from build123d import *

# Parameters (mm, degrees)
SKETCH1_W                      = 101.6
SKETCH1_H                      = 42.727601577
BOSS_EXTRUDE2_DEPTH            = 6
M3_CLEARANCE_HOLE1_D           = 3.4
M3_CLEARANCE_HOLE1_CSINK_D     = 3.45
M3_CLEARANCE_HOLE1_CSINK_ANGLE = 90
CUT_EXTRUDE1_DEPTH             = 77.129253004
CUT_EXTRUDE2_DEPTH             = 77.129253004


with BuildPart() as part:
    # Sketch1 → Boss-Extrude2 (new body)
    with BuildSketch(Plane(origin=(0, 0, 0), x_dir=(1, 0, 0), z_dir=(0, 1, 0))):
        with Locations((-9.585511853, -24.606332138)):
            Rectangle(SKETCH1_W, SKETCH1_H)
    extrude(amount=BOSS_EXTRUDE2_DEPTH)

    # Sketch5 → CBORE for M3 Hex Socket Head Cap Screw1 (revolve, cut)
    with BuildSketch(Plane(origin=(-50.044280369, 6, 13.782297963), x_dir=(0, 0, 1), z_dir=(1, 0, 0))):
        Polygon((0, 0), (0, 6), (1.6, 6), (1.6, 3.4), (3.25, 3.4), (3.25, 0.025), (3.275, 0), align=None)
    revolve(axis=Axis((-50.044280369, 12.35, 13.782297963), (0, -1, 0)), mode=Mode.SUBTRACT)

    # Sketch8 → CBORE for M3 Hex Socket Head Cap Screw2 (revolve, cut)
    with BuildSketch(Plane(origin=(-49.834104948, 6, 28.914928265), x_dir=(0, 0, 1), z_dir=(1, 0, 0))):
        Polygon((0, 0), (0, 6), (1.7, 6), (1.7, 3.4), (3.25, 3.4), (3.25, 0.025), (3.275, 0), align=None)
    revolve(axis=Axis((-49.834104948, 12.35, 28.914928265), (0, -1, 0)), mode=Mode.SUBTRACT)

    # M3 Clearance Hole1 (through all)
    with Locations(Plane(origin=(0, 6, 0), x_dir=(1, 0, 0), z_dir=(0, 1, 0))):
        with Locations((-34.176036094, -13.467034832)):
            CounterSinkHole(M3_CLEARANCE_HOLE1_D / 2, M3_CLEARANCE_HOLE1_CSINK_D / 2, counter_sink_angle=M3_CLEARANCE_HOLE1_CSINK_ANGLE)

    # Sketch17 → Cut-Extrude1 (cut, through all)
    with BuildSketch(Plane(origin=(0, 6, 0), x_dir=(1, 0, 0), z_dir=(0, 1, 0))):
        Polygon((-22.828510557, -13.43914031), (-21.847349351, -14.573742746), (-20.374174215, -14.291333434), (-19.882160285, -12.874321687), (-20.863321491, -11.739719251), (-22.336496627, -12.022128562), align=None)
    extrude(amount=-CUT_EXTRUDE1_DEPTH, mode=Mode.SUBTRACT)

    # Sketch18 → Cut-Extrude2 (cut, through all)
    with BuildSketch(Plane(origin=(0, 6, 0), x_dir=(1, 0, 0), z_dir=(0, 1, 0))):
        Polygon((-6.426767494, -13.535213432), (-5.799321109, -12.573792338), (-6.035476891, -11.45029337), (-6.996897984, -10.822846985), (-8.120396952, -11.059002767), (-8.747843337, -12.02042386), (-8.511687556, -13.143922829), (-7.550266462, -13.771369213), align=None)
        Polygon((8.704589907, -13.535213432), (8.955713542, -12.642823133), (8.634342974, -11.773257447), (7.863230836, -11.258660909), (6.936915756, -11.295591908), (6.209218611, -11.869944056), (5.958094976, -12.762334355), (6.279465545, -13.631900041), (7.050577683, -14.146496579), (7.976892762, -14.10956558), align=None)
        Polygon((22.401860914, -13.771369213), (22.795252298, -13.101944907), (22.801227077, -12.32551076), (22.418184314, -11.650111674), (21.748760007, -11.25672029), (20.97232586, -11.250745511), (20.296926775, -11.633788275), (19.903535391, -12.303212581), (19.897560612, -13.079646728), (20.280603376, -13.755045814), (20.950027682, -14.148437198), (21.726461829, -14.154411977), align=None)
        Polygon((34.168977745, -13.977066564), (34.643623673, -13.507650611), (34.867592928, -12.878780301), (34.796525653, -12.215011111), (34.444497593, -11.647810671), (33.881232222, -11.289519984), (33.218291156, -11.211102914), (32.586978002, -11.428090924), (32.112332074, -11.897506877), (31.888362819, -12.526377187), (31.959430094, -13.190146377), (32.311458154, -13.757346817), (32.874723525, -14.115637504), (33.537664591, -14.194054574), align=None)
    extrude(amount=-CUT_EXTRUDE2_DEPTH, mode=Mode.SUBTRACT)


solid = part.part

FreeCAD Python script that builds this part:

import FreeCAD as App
import Part
import Sketcher
Q = App.Units.Quantity


def add_polygon(sketch, points):
    """Adds a closed chain of lines whose ends are joined by coincident constraints."""
    first, n = sketch.GeometryCount, len(points)
    for a, b in zip(points, points[1:] + points[:1]):
        sketch.addGeometry(Part.LineSegment(App.Vector(*a, 0), App.Vector(*b, 0)), False)
    for i in range(n):
        sketch.addConstraint(Sketcher.Constraint("Coincident", first + i, 2, first + (i + 1) % n, 1))

doc = App.newDocument("Part")
body = doc.addObject("PartDesign::Body", "Body")

# Sketch on XZ plane
sketch1 = body.newObject("Sketcher::SketchObject", "Sketch")
sketch1.AttachmentSupport = (doc.getObject("XZ_Plane"), [""])
sketch1.MapMode = "FlatFace"
add_polygon(sketch1, [(-60.385512, 3.242531), (-60.385512, 45.970133), (41.214488, 45.970133), (41.214488, 3.242531)])  # lines 0-3
sketch1.addConstraint(Sketcher.Constraint("Vertical", 0))
sketch1.addConstraint(Sketcher.Constraint("Horizontal", 1))
sketch1.addConstraint(Sketcher.Constraint("Vertical", 2))
sketch1.addConstraint(Sketcher.Constraint("Horizontal", 3))
sketch1.addConstraint(Sketcher.Constraint("DistanceX", 1, 1, 1, 2, 101.6))
sketch1.addConstraint(Sketcher.Constraint("DistanceY", 0, 1, 0, 2, 42.727602))
sketch1.addConstraint(Sketcher.Constraint("DistanceX", 0, 2, -1, 1, 60.385512))
sketch1.addConstraint(Sketcher.Constraint("DistanceY", -1, 1, 2, 2, 3.242531))
pad1 = body.newObject("PartDesign::Pad", "Pad")
pad1.Profile = sketch1
pad1.Length = 6
pad1.Reversed = True

# Sketch on YZ plane
sketch2 = body.newObject("Sketcher::SketchObject", "Sketch001")
sketch2.AttachmentSupport = (doc.getObject("YZ_Plane"), [""])
sketch2.MapMode = "FlatFace"
sketch2.AttachmentOffset = App.Placement(App.Vector(0, 0, -50.04428), App.Rotation())
add_polygon(sketch2, [(0, 13.782298), (6, 13.782298), (6, 17.057298), (5.975, 17.032298), (2.6, 17.032298), (2.6, 15.382298), (0, 15.382298)])  # lines 0-6
sketch2.addGeometry(Part.LineSegment(App.Vector(6, 13.782298, 0), App.Vector(0, 13.782298, 0)), True)  # axis
sketch2.addConstraint(Sketcher.Constraint("Horizontal", 0))
sketch2.addConstraint(Sketcher.Constraint("Vertical", 1))
sketch2.addConstraint(Sketcher.Constraint("Horizontal", 3))
sketch2.addConstraint(Sketcher.Constraint("Vertical", 4))
sketch2.addConstraint(Sketcher.Constraint("Horizontal", 5))
sketch2.addConstraint(Sketcher.Constraint("Vertical", 6))
sketch2.addConstraint(Sketcher.Constraint("Horizontal", 7))
sketch2.addConstraint(Sketcher.Constraint("Coincident", 7, 1, 0, 2))
sketch2.addConstraint(Sketcher.Constraint("PointOnObject", 5, 2, -2))
sketch2.addConstraint(Sketcher.Constraint("PointOnObject", 7, 2, -2))
sketch2.addConstraint(Sketcher.Constraint("DistanceX", 0, 1, 0, 2, 6.0))
sketch2.addConstraint(Sketcher.Constraint("Angle", 2, Q("-135 deg")))
sketch2.addConstraint(Sketcher.Constraint("DistanceX", 5, 2, 5, 1, 2.6))
sketch2.addConstraint(Sketcher.Constraint("DistanceY", 6, 2, 6, 1, 1.6))
sketch2.addConstraint(Sketcher.Constraint("DistanceY", 4, 2, 4, 1, 1.65))
sketch2.addConstraint(Sketcher.Constraint("DistanceX", 3, 2, 3, 1, 3.375))
sketch2.addConstraint(Sketcher.Constraint("DistanceY", -1, 1, 0, 2, 13.782298))
groove = body.newObject("PartDesign::Groove", "Groove")
groove.Profile = sketch2
groove.ReferenceAxis = (sketch2, ["Axis0"])
groove.Angle = 360

# Sketch on YZ plane
sketch3 = body.newObject("Sketcher::SketchObject", "Sketch002")
sketch3.AttachmentSupport = (doc.getObject("YZ_Plane"), [""])
sketch3.MapMode = "FlatFace"
sketch3.AttachmentOffset = App.Placement(App.Vector(0, 0, -49.834105), App.Rotation())
add_polygon(sketch3, [(0, 28.914928), (6, 28.914928), (6, 32.189928), (5.975, 32.164928), (2.6, 32.164928), (2.6, 30.614928), (0, 30.614928)])  # lines 0-6
sketch3.addGeometry(Part.LineSegment(App.Vector(6, 28.914928, 0), App.Vector(0, 28.914928, 0)), True)  # axis
sketch3.addConstraint(Sketcher.Constraint("Horizontal", 0))
sketch3.addConstraint(Sketcher.Constraint("Vertical", 1))
sketch3.addConstraint(Sketcher.Constraint("Horizontal", 3))
sketch3.addConstraint(Sketcher.Constraint("Vertical", 4))
sketch3.addConstraint(Sketcher.Constraint("Horizontal", 5))
sketch3.addConstraint(Sketcher.Constraint("Vertical", 6))
sketch3.addConstraint(Sketcher.Constraint("Horizontal", 7))
sketch3.addConstraint(Sketcher.Constraint("Coincident", 7, 1, 0, 2))
sketch3.addConstraint(Sketcher.Constraint("PointOnObject", 5, 2, -2))
sketch3.addConstraint(Sketcher.Constraint("PointOnObject", 7, 2, -2))
sketch3.addConstraint(Sketcher.Constraint("DistanceX", 0, 1, 0, 2, 6.0))
sketch3.addConstraint(Sketcher.Constraint("Angle", 2, Q("-135 deg")))
sketch3.addConstraint(Sketcher.Constraint("DistanceX", 5, 2, 5, 1, 2.6))
sketch3.addConstraint(Sketcher.Constraint("DistanceY", 6, 2, 6, 1, 1.7))
sketch3.addConstraint(Sketcher.Constraint("DistanceY", 4, 2, 4, 1, 1.55))
sketch3.addConstraint(Sketcher.Constraint("DistanceX", 3, 2, 3, 1, 3.375))
sketch3.addConstraint(Sketcher.Constraint("DistanceY", -1, 1, 0, 2, 28.914928))
groove2 = body.newObject("PartDesign::Groove", "Groove001")
groove2.Profile = sketch3
groove2.ReferenceAxis = (sketch3, ["Axis0"])
groove2.Angle = 360

# Sketch on XZ plane
sketch4 = body.newObject("Sketcher::SketchObject", "Sketch003")
sketch4.AttachmentSupport = (doc.getObject("XZ_Plane"), [""])
sketch4.MapMode = "FlatFace"
sketch4.AttachmentOffset = App.Placement(App.Vector(0, 0, -6), App.Rotation())
sketch4.addGeometry(Part.Circle(App.Vector(-34.176036, 13.467035, 0), App.Vector(0, 0, 1), 1.7), False)
sketch4.addConstraint(Sketcher.Constraint("Diameter", 0, 3.4))
sketch4.addConstraint(Sketcher.Constraint("DistanceX", 0, 3, -1, 1, 34.176036))
sketch4.addConstraint(Sketcher.Constraint("DistanceY", -1, 1, 0, 3, 13.467035))
doc.recompute()
hole = body.newObject("PartDesign::Hole", "Hole")
hole.Profile = sketch4
hole.ThreadType = "None"
hole.Diameter = 3.4
hole.DepthType = "ThroughAll"
hole.HoleCutType = "Countersink"
hole.HoleCutDiameter = 3.45
hole.HoleCutCountersinkAngle = 90
hole.Reversed = True

# Sketch on XZ plane
sketch5 = body.newObject("Sketcher::SketchObject", "Sketch004")
sketch5.AttachmentSupport = (doc.getObject("XZ_Plane"), [""])
sketch5.MapMode = "FlatFace"
sketch5.AttachmentOffset = App.Placement(App.Vector(0, 0, -6), App.Rotation())
add_polygon(sketch5, [(-22.828511, 13.43914), (-21.847349, 14.573743), (-20.374174, 14.291333), (-19.88216, 12.874322), (-20.863321, 11.739719), (-22.336497, 12.022129)])  # lines 0-5
sketch5.addConstraint(Sketcher.Constraint("Parallel", 0, 3))
sketch5.addConstraint(Sketcher.Constraint("Parallel", 1, 4))
sketch5.addConstraint(Sketcher.Constraint("Parallel", 2, 5))
sketch5.addConstraint(Sketcher.Constraint("Equal", 0, 1))
sketch5.addConstraint(Sketcher.Constraint("Equal", 1, 2))
sketch5.addConstraint(Sketcher.Constraint("Equal", 2, 3))
sketch5.addConstraint(Sketcher.Constraint("Distance", 0, 1.5))
sketch5.addConstraint(Sketcher.Constraint("DistanceX", 0, 2, -1, 1, 21.847349))
sketch5.addConstraint(Sketcher.Constraint("DistanceX", 2, 2, -1, 1, 19.88216))
sketch5.addConstraint(Sketcher.Constraint("DistanceY", -1, 1, 2, 2, 12.874322))
sketch5.addConstraint(Sketcher.Constraint("DistanceX", 3, 2, -1, 1, 20.863321))
sketch5.addConstraint(Sketcher.Constraint("DistanceY", -1, 1, 4, 2, 12.022129))
pocket1 = body.newObject("PartDesign::Pocket", "Pocket")
pocket1.Profile = sketch5
pocket1.Type = "ThroughAll"
pocket1.Reversed = True

# Sketch on XZ plane
sketch6 = body.newObject("Sketcher::SketchObject", "Sketch005")
sketch6.AttachmentSupport = (doc.getObject("XZ_Plane"), [""])
sketch6.MapMode = "FlatFace"
sketch6.AttachmentOffset = App.Placement(App.Vector(0, 0, -6), App.Rotation())
add_polygon(sketch6, [(-6.426767, 13.535213), (-5.799321, 12.573792), (-6.035477, 11.450293), (-6.996898, 10.822847), (-8.120397, 11.059003), (-8.747843, 12.020424), (-8.511688, 13.143923), (-7.550266, 13.771369)])  # lines 0-7
add_polygon(sketch6, [(8.70459, 13.535213), (8.955714, 12.642823), (8.634343, 11.773257), (7.863231, 11.258661), (6.936916, 11.295592), (6.209219, 11.869944), (5.958095, 12.762334), (6.279466, 13.6319), (7.050578, 14.146497), (7.976893, 14.109566)])  # lines 8-17
add_polygon(sketch6, [(22.401861, 13.771369), (22.795252, 13.101945), (22.801227, 12.325511), (22.418184, 11.650112), (21.74876, 11.25672), (20.972326, 11.250746), (20.296927, 11.633788), (19.903535, 12.303213), (19.897561, 13.079647), (20.280603, 13.755046), (20.950028, 14.148437), (21.726462, 14.154412)])  # lines 18-29
add_polygon(sketch6, [(34.168978, 13.977067), (34.643624, 13.507651), (34.867593, 12.87878), (34.796526, 12.215011), (34.444498, 11.647811), (33.881232, 11.28952), (33.218291, 11.211103), (32.586978, 11.428091), (32.112332, 11.897507), (31.888363, 12.526377), (31.95943, 13.190146), (32.311458, 13.757347), (32.874724, 14.115638), (33.537665, 14.194055)])  # lines 30-43
sketch6.addConstraint(Sketcher.Constraint("DistanceX", 7, 2, 10, 2, 14.289998))
sketch6.addConstraint(Sketcher.Constraint("DistanceY", -1, 1, 14, 2, 13.6319))
sketch6.addConstraint(Sketcher.Constraint("DistanceY", 1, 2, 0, 2, 1.123499))
sketch6.addConstraint(Sketcher.Constraint("DistanceX", 3, 2, 2, 2, 1.123499))
sketch6.addConstraint(Sketcher.Constraint("DistanceY", 4, 2, 5, 2, 1.123499))
sketch6.addConstraint(Sketcher.Constraint("DistanceX", 6, 2, 7, 2, 1.123499))
sketch6.addConstraint(Sketcher.Constraint("DistanceY", 11, 2, 0, 2, 1.2782))
sketch6.addConstraint(Sketcher.Constraint("DistanceY", 20, 2, 19, 2, 0.675399))
sketch6.addConstraint(Sketcher.Constraint("DistanceY", 20, 2, 17, 2, 1.885102))
sketch6.addConstraint(Sketcher.Constraint("DistanceX", 22, 2, 19, 2, 1.828901))
sketch6.addConstraint(Sketcher.Constraint("DistanceY", 22, 2, 18, 2, 1.851199))
sketch6.addConstraint(Sketcher.Constraint("DistanceX", 23, 2, 22, 2, 0.675399))
sketch6.addConstraint(Sketcher.Constraint("DistanceY", 20, 2, 24, 2, 0.653101))
sketch6.addConstraint(Sketcher.Constraint("DistanceY", 22, 2, 25, 2, 1.828901))
sketch6.addConstraint(Sketcher.Constraint("DistanceX", 25, 2, 21, 2, 1.851199))
sketch6.addConstraint(Sketcher.Constraint("DistanceY", 25, 2, 26, 2, 0.675399))
sketch6.addConstraint(Sketcher.Constraint("DistanceX", 27, 2, 19, 2, 1.851199))
sketch6.addConstraint(Sketcher.Constraint("DistanceY", 19, 2, 28, 2, 1.828901))
sketch6.addConstraint(Sketcher.Constraint("DistanceX", 25, 2, 28, 2, 1.828901))
sketch6.addConstraint(Sketcher.Constraint("DistanceX", 28, 2, 29, 2, 0.675399))
sketch6.addConstraint(Sketcher.Constraint("DistanceX", 30, 2, 32, 2, 0.152902))
sketch6.addConstraint(Sketcher.Constraint("DistanceX", 19, 2, 32, 2, 11.995299))
sketch6.addConstraint(Sketcher.Constraint("DistanceY", 32, 2, 19, 2, 0.1105))
sketch6.addConstraint(Sketcher.Constraint("DistanceY", 33, 2, 32, 2, 0.5672))
sketch6.addConstraint(Sketcher.Constraint("DistanceX", 35, 2, 31, 2, 1.649302))
sketch6.addConstraint(Sketcher.Constraint("DistanceX", 37, 2, 34, 2, 1.7689))
sketch6.addConstraint(Sketcher.Constraint("DistanceX", 39, 2, 37, 2, 0.152902))
sketch6.addConstraint(Sketcher.Constraint("DistanceY", 39, 2, 40, 2, 0.5672))
sketch6.addConstraint(Sketcher.Constraint("DistanceX", 41, 2, 30, 2, 1.7689))
sketch6.addConstraint(Sketcher.Constraint("Distance", 0, 1.14805))
sketch6.addConstraint(Sketcher.Constraint("Distance", 1, 1.14805))
sketch6.addConstraint(Sketcher.Constraint("Distance", 2, 1.14805))
sketch6.addConstraint(Sketcher.Constraint("Distance", 3, 1.14805))
sketch6.addConstraint(Sketcher.Constraint("Distance", 4, 1.14805))
sketch6.addConstraint(Sketcher.Constraint("Distance", 5, 1.14805))
sketch6.addConstraint(Sketcher.Constraint("Distance", 6, 1.14805))
sketch6.addConstraint(Sketcher.Constraint("Distance", 7, 1.14805))
sketch6.addConstraint(Sketcher.Constraint("Distance", 8, 0.927051))
sketch6.addConstraint(Sketcher.Constraint("Distance", 9, 0.927051))
sketch6.addConstraint(Sketcher.Constraint("Distance", 10, 0.927051))
sketch6.addConstraint(Sketcher.Constraint("Distance", 11, 0.927051))
sketch6.addConstraint(Sketcher.Constraint("Distance", 12, 0.927051))
sketch6.addConstraint(Sketcher.Constraint("Distance", 13, 0.927051))
sketch6.addConstraint(Sketcher.Constraint("Distance", 14, 0.927051))
sketch6.addConstraint(Sketcher.Constraint("Distance", 15, 0.927051))
sketch6.addConstraint(Sketcher.Constraint("Distance", 16, 0.927051))
sketch6.addConstraint(Sketcher.Constraint("Distance", 17, 0.927051))
sketch6.addConstraint(Sketcher.Constraint("DistanceX", 0, 2, -1, 1, 5.799321))
sketch6.addConstraint(Sketcher.Constraint("DistanceY", -1, 1, 6, 2, 13.771369))
sketch6.addConstraint(Sketcher.Constraint("DistanceX", -1, 1, 10, 2, 7.863231))
sketch6.addConstraint(Sketcher.Constraint("DistanceY", -1, 1, 10, 2, 11.258661))
sketch6.addConstraint(Sketcher.Constraint("DistanceX", -1, 1, 12, 2, 6.209219))
sketch6.addConstraint(Sketcher.Constraint("DistanceX", -1, 1, 17, 2, 8.70459))
sketch6.addConstraint(Sketcher.Constraint("DistanceY", -1, 1, 19, 2, 12.325511))
sketch6.addConstraint(Sketcher.Constraint("DistanceX", -1, 1, 21, 2, 21.74876))
sketch6.addConstraint(Sketcher.Constraint("DistanceY", -1, 1, 21, 2, 11.25672))
sketch6.addConstraint(Sketcher.Constraint("DistanceY", -1, 1, 23, 2, 11.633788))
sketch6.addConstraint(Sketcher.Constraint("DistanceY", -1, 1, 29, 2, 13.771369))
sketch6.addConstraint(Sketcher.Constraint("DistanceY", -1, 1, 30, 2, 13.507651))
sketch6.addConstraint(Sketcher.Constraint("DistanceY", -1, 1, 31, 2, 12.87878))
sketch6.addConstraint(Sketcher.Constraint("DistanceY", -1, 1, 34, 2, 11.28952))
sketch6.addConstraint(Sketcher.Constraint("DistanceX", -1, 1, 35, 2, 33.218291))
sketch6.addConstraint(Sketcher.Constraint("DistanceX", -1, 1, 36, 2, 32.586978))
sketch6.addConstraint(Sketcher.Constraint("DistanceY", -1, 1, 36, 2, 11.428091))
sketch6.addConstraint(Sketcher.Constraint("DistanceX", -1, 1, 39, 2, 31.95943))
sketch6.addConstraint(Sketcher.Constraint("DistanceX", -1, 1, 40, 2, 32.311458))
sketch6.addConstraint(Sketcher.Constraint("DistanceX", 2, 2, 1, 2, 0.961421))
sketch6.addConstraint(Sketcher.Constraint("DistanceY", 0, 2, 8, 2, 0.069031))
sketch6.addConstraint(Sketcher.Constraint("DistanceY", 12, 2, 13, 2, 0.89239))
sketch6.addConstraint(Sketcher.Constraint("DistanceX", 12, 2, 15, 2, 0.841359))
sketch6.addConstraint(Sketcher.Constraint("DistanceX", 8, 2, 18, 2, 13.839539))
sketch6.addConstraint(Sketcher.Constraint("DistanceY", 8, 2, 18, 2, 0.459122))
sketch6.addConstraint(Sketcher.Constraint("DistanceX", 8, 2, 20, 2, 13.462471))
sketch6.addConstraint(Sketcher.Constraint("DistanceX", 22, 2, 20, 2, 1.445858))
sketch6.addConstraint(Sketcher.Constraint("DistanceX", 24, 2, 23, 2, 0.393391))
sketch6.addConstraint(Sketcher.Constraint("DistanceX", 26, 2, 18, 2, 2.514649))
sketch6.addConstraint(Sketcher.Constraint("DistanceY", 26, 2, 27, 2, 0.393391))
sketch6.addConstraint(Sketcher.Constraint("DistanceX", 33, 2, 32, 2, 0.352028))
sketch6.addConstraint(Sketcher.Constraint("DistanceY", 35, 2, 32, 2, 1.003908))
sketch6.addConstraint(Sketcher.Constraint("DistanceX", 38, 2, 37, 2, 0.223969))
sketch6.addConstraint(Sketcher.Constraint("DistanceY", 37, 2, 38, 2, 0.62887))
sketch6.addConstraint(Sketcher.Constraint("DistanceY", 38, 2, 39, 2, 0.663769))
sketch6.addConstraint(Sketcher.Constraint("DistanceY", 40, 2, 41, 2, 0.358291))
sketch6.addConstraint(Sketcher.Constraint("DistanceX", 41, 2, 42, 2, 0.662941))
sketch6.addConstraint(Sketcher.Constraint("DistanceY", 39, 2, 42, 2, 1.003908))
sketch6.addConstraint(Sketcher.Constraint("DistanceY", 43, 2, 42, 2, 0.216988))
sketch6.addConstraint(Sketcher.Constraint("Distance", 30, 0.667563))
sketch6.addConstraint(Sketcher.Constraint("Distance", 37, 0.667563))
pocket2 = body.newObject("PartDesign::Pocket", "Pocket001")
pocket2.Profile = sketch6
pocket2.Type = "ThroughAll"
pocket2.Reversed = True

doc.recompute()
